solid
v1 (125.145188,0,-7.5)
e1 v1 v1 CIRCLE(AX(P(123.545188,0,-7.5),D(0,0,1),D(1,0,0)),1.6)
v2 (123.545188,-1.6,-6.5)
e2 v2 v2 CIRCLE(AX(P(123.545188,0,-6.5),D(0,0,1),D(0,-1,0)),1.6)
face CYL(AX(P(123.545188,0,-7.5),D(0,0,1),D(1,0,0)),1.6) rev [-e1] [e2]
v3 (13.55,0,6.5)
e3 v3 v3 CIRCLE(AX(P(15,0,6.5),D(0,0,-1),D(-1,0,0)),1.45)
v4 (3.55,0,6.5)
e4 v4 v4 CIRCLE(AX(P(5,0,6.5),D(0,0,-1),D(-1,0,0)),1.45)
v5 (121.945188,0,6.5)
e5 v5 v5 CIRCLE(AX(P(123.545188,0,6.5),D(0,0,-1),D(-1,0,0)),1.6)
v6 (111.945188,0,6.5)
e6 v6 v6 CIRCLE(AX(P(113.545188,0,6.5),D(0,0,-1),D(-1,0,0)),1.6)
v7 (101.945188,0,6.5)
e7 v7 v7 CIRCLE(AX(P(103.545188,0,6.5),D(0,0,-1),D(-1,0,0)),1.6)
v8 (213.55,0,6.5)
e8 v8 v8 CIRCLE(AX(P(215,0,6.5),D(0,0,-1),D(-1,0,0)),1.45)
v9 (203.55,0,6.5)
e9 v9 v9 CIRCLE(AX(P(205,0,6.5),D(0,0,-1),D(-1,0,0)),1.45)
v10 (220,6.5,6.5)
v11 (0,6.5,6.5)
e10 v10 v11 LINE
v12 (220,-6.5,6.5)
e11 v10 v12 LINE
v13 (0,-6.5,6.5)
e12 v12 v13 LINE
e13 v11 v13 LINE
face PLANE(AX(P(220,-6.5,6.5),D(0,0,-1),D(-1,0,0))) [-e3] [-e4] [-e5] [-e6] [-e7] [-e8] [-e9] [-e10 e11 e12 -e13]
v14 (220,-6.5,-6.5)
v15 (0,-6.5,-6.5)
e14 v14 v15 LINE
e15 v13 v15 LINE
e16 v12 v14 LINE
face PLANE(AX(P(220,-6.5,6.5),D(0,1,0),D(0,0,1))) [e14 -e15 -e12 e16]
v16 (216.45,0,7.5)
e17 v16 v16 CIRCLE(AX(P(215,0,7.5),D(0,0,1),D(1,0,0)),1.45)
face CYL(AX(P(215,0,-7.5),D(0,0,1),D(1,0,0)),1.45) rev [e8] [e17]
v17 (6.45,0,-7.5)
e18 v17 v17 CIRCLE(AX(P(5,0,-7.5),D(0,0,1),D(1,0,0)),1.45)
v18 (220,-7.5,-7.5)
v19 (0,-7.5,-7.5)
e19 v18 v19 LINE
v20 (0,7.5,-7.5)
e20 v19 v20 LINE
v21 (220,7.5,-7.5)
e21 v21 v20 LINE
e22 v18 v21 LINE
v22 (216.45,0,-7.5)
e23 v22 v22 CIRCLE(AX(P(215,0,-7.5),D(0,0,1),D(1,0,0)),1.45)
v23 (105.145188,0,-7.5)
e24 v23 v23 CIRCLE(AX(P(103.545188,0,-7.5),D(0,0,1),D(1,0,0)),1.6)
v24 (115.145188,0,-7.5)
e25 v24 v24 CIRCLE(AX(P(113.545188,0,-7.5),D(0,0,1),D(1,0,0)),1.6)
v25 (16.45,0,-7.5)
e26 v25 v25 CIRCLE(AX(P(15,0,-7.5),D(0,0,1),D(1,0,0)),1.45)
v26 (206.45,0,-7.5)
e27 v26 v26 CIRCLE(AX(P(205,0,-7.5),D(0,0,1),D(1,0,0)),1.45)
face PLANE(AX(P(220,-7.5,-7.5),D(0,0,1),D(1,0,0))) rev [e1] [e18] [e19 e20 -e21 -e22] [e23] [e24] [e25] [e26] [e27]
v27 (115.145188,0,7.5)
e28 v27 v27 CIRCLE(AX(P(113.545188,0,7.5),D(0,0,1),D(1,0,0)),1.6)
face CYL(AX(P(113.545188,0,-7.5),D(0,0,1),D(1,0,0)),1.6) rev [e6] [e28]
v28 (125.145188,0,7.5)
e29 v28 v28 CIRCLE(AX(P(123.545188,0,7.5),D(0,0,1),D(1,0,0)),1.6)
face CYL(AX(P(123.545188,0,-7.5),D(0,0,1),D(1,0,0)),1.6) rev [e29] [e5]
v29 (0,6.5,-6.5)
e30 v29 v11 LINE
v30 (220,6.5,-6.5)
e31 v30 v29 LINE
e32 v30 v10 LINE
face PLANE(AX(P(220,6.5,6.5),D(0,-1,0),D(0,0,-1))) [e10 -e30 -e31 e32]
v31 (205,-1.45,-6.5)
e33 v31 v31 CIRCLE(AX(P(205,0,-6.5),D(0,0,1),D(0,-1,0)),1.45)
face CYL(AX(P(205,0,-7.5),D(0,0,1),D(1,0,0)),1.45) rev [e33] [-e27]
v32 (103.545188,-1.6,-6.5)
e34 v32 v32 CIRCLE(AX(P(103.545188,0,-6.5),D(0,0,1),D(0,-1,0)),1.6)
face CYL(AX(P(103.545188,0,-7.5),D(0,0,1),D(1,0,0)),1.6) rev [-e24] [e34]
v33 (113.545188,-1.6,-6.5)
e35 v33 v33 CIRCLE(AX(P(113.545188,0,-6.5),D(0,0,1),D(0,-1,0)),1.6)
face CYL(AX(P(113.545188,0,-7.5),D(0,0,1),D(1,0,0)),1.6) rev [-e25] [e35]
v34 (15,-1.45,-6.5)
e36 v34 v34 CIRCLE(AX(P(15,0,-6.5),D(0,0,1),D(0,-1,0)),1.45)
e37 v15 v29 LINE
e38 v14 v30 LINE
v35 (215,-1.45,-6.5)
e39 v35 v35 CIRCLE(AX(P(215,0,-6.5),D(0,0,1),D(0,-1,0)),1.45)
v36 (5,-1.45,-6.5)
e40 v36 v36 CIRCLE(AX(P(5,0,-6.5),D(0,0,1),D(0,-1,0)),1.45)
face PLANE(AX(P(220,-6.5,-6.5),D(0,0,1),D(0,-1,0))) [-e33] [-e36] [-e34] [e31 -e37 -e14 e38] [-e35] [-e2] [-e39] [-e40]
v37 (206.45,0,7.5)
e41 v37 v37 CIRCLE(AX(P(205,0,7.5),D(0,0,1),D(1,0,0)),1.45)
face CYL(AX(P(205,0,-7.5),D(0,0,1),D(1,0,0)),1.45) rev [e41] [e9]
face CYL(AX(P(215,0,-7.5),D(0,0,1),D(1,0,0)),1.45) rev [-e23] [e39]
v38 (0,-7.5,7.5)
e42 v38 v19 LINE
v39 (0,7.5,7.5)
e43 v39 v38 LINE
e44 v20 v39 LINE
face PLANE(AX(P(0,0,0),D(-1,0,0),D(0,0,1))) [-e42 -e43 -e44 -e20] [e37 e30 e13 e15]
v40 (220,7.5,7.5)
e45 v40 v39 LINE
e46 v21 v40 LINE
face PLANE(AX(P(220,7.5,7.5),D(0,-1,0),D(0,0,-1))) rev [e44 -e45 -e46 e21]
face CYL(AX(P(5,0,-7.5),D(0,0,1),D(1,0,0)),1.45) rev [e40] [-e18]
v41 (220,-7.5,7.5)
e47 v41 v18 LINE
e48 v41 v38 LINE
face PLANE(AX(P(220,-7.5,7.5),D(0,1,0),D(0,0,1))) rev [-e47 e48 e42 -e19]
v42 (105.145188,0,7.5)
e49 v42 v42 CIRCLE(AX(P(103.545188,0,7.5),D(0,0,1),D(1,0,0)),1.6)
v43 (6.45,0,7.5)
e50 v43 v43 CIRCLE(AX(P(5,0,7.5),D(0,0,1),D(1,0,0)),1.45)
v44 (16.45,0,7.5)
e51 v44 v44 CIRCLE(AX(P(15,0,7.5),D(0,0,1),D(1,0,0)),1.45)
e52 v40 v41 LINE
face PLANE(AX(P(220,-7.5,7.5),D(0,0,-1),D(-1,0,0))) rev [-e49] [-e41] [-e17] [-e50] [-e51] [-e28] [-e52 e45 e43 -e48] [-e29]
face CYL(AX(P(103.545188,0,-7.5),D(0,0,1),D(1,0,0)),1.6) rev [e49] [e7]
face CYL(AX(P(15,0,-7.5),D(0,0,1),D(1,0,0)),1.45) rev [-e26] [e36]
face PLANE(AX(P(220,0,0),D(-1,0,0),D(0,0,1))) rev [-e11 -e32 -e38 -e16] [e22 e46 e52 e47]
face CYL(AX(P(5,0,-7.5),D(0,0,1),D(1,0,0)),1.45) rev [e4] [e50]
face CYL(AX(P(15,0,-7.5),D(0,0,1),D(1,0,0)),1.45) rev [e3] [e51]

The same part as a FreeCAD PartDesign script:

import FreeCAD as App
import Part
import Sketcher

V = App.Vector

doc = App.newDocument("Part")
body = doc.addObject("PartDesign::Body", "Body")

# Sketch on YZ plane
sketch1 = doc.addObject("Sketcher::SketchObject", "Sketch")
body.addObject(sketch1)
sketch1.AttachmentSupport = (doc.YZ_Plane, [""])
sketch1.MapMode = "FlatFace"
sketch1.addGeometry([
    Part.LineSegment(V(8, 8, 0), V(-8, 8, 0)),  # 0
    Part.LineSegment(V(-8, 8, 0), V(-8, -8, 0)),  # 1
    Part.LineSegment(V(-8, -8, 0), V(8, -8, 0)),  # 2
    Part.LineSegment(V(8, -8, 0), V(8, 8, 0)),  # 3
    Part.LineSegment(V(-6, -6, 0), V(-6, 6, 0)),  # 4
    Part.LineSegment(V(-6, 6, 0), V(6, 6, 0)),  # 5
    Part.LineSegment(V(6, 6, 0), V(6, -6, 0)),  # 6
    Part.LineSegment(V(6, -6, 0), V(-6, -6, 0)),  # 7
], False)
sketch1.addConstraint([
    Sketcher.Constraint("Coincident", 0, 2, 1, 1),
    Sketcher.Constraint("Coincident", 1, 2, 2, 1),
    Sketcher.Constraint("Coincident", 2, 2, 3, 1),
    Sketcher.Constraint("Coincident", 3, 2, 0, 1),
    Sketcher.Constraint("Coincident", 4, 2, 5, 1),
    Sketcher.Constraint("Coincident", 5, 2, 6, 1),
    Sketcher.Constraint("Coincident", 6, 2, 7, 1),
    Sketcher.Constraint("Coincident", 7, 2, 4, 1),
    Sketcher.Constraint("Horizontal", 0),
    Sketcher.Constraint("Vertical", 1),
    Sketcher.Constraint("Horizontal", 2),
    Sketcher.Constraint("Vertical", 3),
    Sketcher.Constraint("Vertical", 4),
    Sketcher.Constraint("Horizontal", 5),
    Sketcher.Constraint("Vertical", 6),
    Sketcher.Constraint("Horizontal", 7),
    Sketcher.Constraint("Symmetric", 0, 2, 2, 2, -1, 1),
    Sketcher.Constraint("Symmetric", 4, 2, 6, 2, -1, 1),
    Sketcher.Constraint("Equal", 2, 1),
    Sketcher.Constraint("Equal", 7, 4),
    Sketcher.Constraint("DistanceX", 0, 2, 0, 1, 15.0),
    Sketcher.Constraint("DistanceX", 5, 1, 5, 2, 13.0),
])
pad1 = doc.addObject("PartDesign::Pad", "Pad")
body.addObject(pad1)
pad1.Profile = sketch1
pad1.Length = 220

# Sketch on XY plane
sketch2 = doc.addObject("Sketcher::SketchObject", "Sketch001")
body.addObject(sketch2)
sketch2.AttachmentSupport = (doc.XY_Plane, [""])
sketch2.MapMode = "FlatFace"
sketch2.AttachmentOffset = App.Placement(V(0, 0, 7.5), App.Rotation())
sketch2.addGeometry([
    Part.Circle(V(215, 0, 0), V(0, 0, 1), 1.4),  # 0
    Part.Circle(V(205, 0, 0), V(0, 0, 1), 1.4),  # 1
    Part.Circle(V(123.5, 0, 0), V(0, 0, 1), 1.6),  # 2
    Part.Circle(V(113.5, 0, 0), V(0, 0, 1), 1.6),  # 3
    Part.Circle(V(103.5, 0, 0), V(0, 0, 1), 1.6),  # 4
    Part.Circle(V(15, 0, 0), V(0, 0, 1), 1.4),  # 5
    Part.Circle(V(5, 0, 0), V(0, 0, 1), 1.4),  # 6
], False)
sketch2.addConstraint([
    Sketcher.Constraint("Equal", 0, 1),
    Sketcher.Constraint("Equal", 2, 3),
    Sketcher.Constraint("Equal", 3, 4),
    Sketcher.Constraint("Equal", 1, 5),
    Sketcher.Constraint("Equal", 5, 6),
    Sketcher.Constraint("PointOnObject", 0, 3, -1),
    Sketcher.Constraint("PointOnObject", 1, 3, -1),
    Sketcher.Constraint("PointOnObject", 2, 3, -1),
    Sketcher.Constraint("PointOnObject", 3, 3, -1),
    Sketcher.Constraint("PointOnObject", 4, 3, -1),
    Sketcher.Constraint("PointOnObject", 5, 3, -1),
    Sketcher.Constraint("PointOnObject", 6, 3, -1),
    Sketcher.Constraint("Diameter", 0, 2.9),
    Sketcher.Constraint("Diameter", 2, 3.2),
    Sketcher.Constraint("DistanceX", -1, 1, 0, 3, 215.0),
    Sketcher.Constraint("DistanceX", -1, 1, 1, 3, 205.0),
    Sketcher.Constraint("DistanceX", -1, 1, 5, 3, 15.0),
    Sketcher.Constraint("DistanceX", -1, 1, 6, 3, 5.0),
    Sketcher.Constraint("DistanceX", 3, 3, 2, 3, 10.0),
    Sketcher.Constraint("DistanceX", 4, 3, 3, 3, 10.0),
    Sketcher.Constraint("DistanceX", -1, 1, 2, 3, 123.545188),
])
pocket1 = doc.addObject("PartDesign::Pocket", "Pocket")
body.addObject(pocket1)
pocket1.Profile = sketch2
pocket1.Type = "ThroughAll"

doc.recompute()
